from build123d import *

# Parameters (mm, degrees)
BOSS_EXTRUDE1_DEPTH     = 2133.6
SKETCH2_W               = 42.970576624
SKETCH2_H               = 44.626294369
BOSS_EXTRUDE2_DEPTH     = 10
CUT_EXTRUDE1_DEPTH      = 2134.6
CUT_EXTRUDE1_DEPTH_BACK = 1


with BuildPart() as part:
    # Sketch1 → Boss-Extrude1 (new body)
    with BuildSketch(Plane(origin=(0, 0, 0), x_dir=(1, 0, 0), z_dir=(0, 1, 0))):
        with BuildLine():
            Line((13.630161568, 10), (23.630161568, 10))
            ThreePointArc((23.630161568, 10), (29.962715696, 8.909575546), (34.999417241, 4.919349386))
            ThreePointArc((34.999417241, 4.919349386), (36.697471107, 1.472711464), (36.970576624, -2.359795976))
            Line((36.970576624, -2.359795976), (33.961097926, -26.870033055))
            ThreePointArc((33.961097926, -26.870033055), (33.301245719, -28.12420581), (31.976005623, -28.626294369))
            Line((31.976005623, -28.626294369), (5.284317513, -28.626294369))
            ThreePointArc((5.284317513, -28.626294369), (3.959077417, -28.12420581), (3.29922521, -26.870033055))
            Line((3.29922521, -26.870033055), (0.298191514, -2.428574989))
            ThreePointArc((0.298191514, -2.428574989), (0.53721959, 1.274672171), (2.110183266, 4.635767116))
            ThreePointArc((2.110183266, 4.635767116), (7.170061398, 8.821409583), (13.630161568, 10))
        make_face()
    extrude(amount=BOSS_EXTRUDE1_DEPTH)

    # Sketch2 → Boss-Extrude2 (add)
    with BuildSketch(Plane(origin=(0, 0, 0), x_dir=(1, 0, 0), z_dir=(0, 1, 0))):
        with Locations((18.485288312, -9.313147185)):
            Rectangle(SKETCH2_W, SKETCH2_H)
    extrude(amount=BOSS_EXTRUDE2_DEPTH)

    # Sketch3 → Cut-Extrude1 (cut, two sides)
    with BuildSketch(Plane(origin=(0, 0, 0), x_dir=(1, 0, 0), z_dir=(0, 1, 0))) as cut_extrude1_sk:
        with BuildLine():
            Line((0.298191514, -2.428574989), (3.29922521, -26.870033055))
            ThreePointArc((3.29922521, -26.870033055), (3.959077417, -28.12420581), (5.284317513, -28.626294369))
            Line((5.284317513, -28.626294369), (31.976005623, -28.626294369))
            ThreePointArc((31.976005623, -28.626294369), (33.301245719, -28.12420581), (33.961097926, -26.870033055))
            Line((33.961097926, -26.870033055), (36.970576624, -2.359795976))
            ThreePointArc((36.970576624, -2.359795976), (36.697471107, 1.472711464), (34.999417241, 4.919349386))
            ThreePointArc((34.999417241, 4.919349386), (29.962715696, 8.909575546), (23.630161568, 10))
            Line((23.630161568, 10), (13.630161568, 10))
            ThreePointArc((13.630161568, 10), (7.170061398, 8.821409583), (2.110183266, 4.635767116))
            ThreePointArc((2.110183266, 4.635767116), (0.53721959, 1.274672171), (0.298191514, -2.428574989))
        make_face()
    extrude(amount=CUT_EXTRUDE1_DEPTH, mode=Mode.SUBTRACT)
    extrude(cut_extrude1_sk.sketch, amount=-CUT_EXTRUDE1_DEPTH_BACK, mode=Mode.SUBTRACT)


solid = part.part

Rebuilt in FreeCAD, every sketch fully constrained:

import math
import FreeCAD as App
import Part
import Sketcher

V = App.Vector
Q = App.Units.Quantity


def add_polygon(sketch, points):
    """Adds a closed chain of lines whose ends are joined by coincident constraints."""
    first, n = sketch.GeometryCount, len(points)
    for a, b in zip(points, points[1:] + points[:1]):
        sketch.addGeometry(Part.LineSegment(App.Vector(*a, 0), App.Vector(*b, 0)), False)
    for i in range(n):
        sketch.addConstraint(Sketcher.Constraint("Coincident", first + i, 2, first + (i + 1) % n, 1))

doc = App.newDocument("Part")
body = doc.addObject("PartDesign::Body", "Body")

# Sketch on XZ plane
sketch1 = body.newObject("Sketcher::SketchObject", "Sketch")
sketch1.AttachmentSupport = (doc.getObject("XZ_Plane"), [""])
sketch1.MapMode = "FlatFace"
sketch1.addGeometry([
    Part.LineSegment(V(23.630162, -10, 0), V(13.630162, -10, 0)),  # 0
    Part.ArcOfCircle(Part.Circle(V(12.657694, 2.963576, 0), V(0, 0, 1), 13), math.radians(-144.227744), math.radians(-85.70997)),  # 1
    Part.ArcOfCircle(Part.Circle(V(10.223653, 1.209882, 0), V(0, 0, 1), 10), math.radians(173), math.radians(215.772256)),  # 2
    Part.LineSegment(V(0.298192, 2.428575, 0), V(3.299225, 26.870033, 0)),  # 3
    Part.ArcOfCircle(Part.Circle(V(5.284318, 26.626294, 0), V(0, 0, 1), 2), math.radians(90), math.radians(173)),  # 4
    Part.LineSegment(V(5.284318, 28.626294, 0), V(31.976006, 28.626294, 0)),  # 5
    Part.ArcOfCircle(Part.Circle(V(31.976006, 26.626294, 0), V(0, 0, 1), 2), math.radians(7), math.radians(90)),  # 6
    Part.LineSegment(V(33.961098, 26.870033, 0), V(36.970577, 2.359796, 0)),  # 7
    Part.ArcOfCircle(Part.Circle(V(27.045115, 1.141103, 0), V(0, 0, 1), 10), math.radians(-37.304091), math.radians(7)),  # 8
    Part.ArcOfCircle(Part.Circle(V(24.658824, 2.959238, 0), V(0, 0, 1), 13), math.radians(-94.53844), math.radians(-37.304091)),  # 9
], False)
sketch1.addConstraint([
    Sketcher.Constraint("Coincident", 0, 2, 1, 2),
    Sketcher.Constraint("Tangent", 1, 1, 2, 2),
    Sketcher.Constraint("Tangent", 2, 1, 3, 1),
    Sketcher.Constraint("Tangent", 3, 2, 4, 2),
    Sketcher.Constraint("Tangent", 4, 1, 5, 1),
    Sketcher.Constraint("Tangent", 5, 2, 6, 2),
    Sketcher.Constraint("Tangent", 6, 1, 7, 1),
    Sketcher.Constraint("Tangent", 7, 2, 8, 2),
    Sketcher.Constraint("Tangent", 8, 1, 9, 2),
    Sketcher.Constraint("Coincident", 9, 1, 0, 1),
    Sketcher.Constraint("Horizontal", 0),
    Sketcher.Constraint("Horizontal", 5),
    Sketcher.Constraint("Equal", 4, 6),
    Sketcher.Constraint("Equal", 2, 8),
    Sketcher.Constraint("Equal", 1, 9),
    Sketcher.Constraint("Horizontal", 3, 2, 6, 1),
    Sketcher.Constraint("Radius", 1, Q("13 mm")),
    Sketcher.Constraint("Radius", 2, Q("10 mm")),
    Sketcher.Constraint("Radius", 4, Q("2 mm")),
    Sketcher.Constraint("DistanceX", 0, 2, 0, 1, Q("10 mm")),
    Sketcher.Constraint("Angle", 3, Q("83 deg")),
    Sketcher.Constraint("DistanceY", 0, 2, -1, 1, Q("10 mm")),
    Sketcher.Constraint("DistanceY", 2, 1, 1, 3, Q("0.535001 mm")),
    Sketcher.Constraint("DistanceX", 5, 1, 5, 2, Q("26.691688 mm")),
    Sketcher.Constraint("DistanceY", 7, 2, 6, 3, Q("24.266498 mm")),
    Sketcher.Constraint("Distance", 3, Q("24.625009 mm")),
    Sketcher.Constraint("DistanceY", -1, 1, 2, 3, Q("1.209882 mm")),
    Sketcher.Constraint("DistanceX", -1, 1, 0, 2, Q("13.630162 mm")),
])
pad1 = body.newObject("PartDesign::Pad", "Pad")
pad1.Profile = sketch1
pad1.Length = 2133.6
pad1.Reversed = True

# Sketch on XZ plane
sketch2 = body.newObject("Sketcher::SketchObject", "Sketch001")
sketch2.AttachmentSupport = (doc.getObject("XZ_Plane"), [""])
sketch2.MapMode = "FlatFace"
add_polygon(sketch2, [(-3, -13), (-3, 31.626294), (39.970577, 31.626294), (39.970577, -13)])  # lines 0-3
sketch2.addConstraint([
    Sketcher.Constraint("Vertical", 0),
    Sketcher.Constraint("Horizontal", 1),
    Sketcher.Constraint("Vertical", 2),
    Sketcher.Constraint("Horizontal", 3),
    Sketcher.Constraint("DistanceX", 0, 2, -1, 1, Q("3 mm")),
    Sketcher.Constraint("DistanceY", 2, 2, -1, 1, Q("13 mm")),
    Sketcher.Constraint("DistanceX", 1, 1, 1, 2, Q("42.970577 mm")),
    Sketcher.Constraint("DistanceY", 0, 1, 0, 2, Q("44.626294 mm")),
])
pad2 = body.newObject("PartDesign::Pad", "Pad001")
pad2.Profile = sketch2
pad2.Length = 10
pad2.Reversed = True

# Sketch on XZ plane
sketch3 = body.newObject("Sketcher::SketchObject", "Sketch002")
sketch3.AttachmentSupport = (doc.getObject("XZ_Plane"), [""])
sketch3.MapMode = "FlatFace"
sketch3.addGeometry([
    Part.LineSegment(V(0.298192, 2.428575, 0), V(3.299225, 26.870033, 0)),  # 0
    Part.ArcOfCircle(Part.Circle(V(5.284318, 26.626294, 0), V(0, 0, 1), 2), math.radians(90), math.radians(173)),  # 1
    Part.LineSegment(V(5.284318, 28.626294, 0), V(31.976006, 28.626294, 0)),  # 2
    Part.ArcOfCircle(Part.Circle(V(31.976006, 26.626294, 0), V(0, 0, 1), 2), math.radians(7), math.radians(90)),  # 3
    Part.LineSegment(V(33.961098, 26.870033, 0), V(36.970577, 2.359796, 0)),  # 4
    Part.ArcOfCircle(Part.Circle(V(27.045115, 1.141103, 0), V(0, 0, 1), 10), math.radians(-37.304091), math.radians(7)),  # 5
    Part.ArcOfCircle(Part.Circle(V(24.658824, 2.959238, 0), V(0, 0, 1), 13), math.radians(-94.53844), math.radians(-37.304091)),  # 6
    Part.LineSegment(V(23.630162, -10, 0), V(13.630162, -10, 0)),  # 7
    Part.ArcOfCircle(Part.Circle(V(12.657694, 2.963576, 0), V(0, 0, 1), 13), math.radians(-144.227744), math.radians(-85.70997)),  # 8
    Part.ArcOfCircle(Part.Circle(V(10.223653, 1.209882, 0), V(0, 0, 1), 10), math.radians(173), math.radians(215.772256)),  # 9
], False)
sketch3.addConstraint([
    Sketcher.Constraint("Tangent", 0, 2, 1, 2),
    Sketcher.Constraint("Tangent", 1, 1, 2, 1),
    Sketcher.Constraint("Tangent", 2, 2, 3, 2),
    Sketcher.Constraint("Tangent", 3, 1, 4, 1),
    Sketcher.Constraint("Tangent", 4, 2, 5, 2),
    Sketcher.Constraint("Tangent", 5, 1, 6, 2),
    Sketcher.Constraint("Coincident", 6, 1, 7, 1),
    Sketcher.Constraint("Coincident", 7, 2, 8, 2),
    Sketcher.Constraint("Tangent", 8, 1, 9, 2),
    Sketcher.Constraint("Tangent", 9, 1, 0, 1),
    Sketcher.Constraint("Horizontal", 2),
    Sketcher.Constraint("Horizontal", 7),
    Sketcher.Constraint("Equal", 1, 3),
    Sketcher.Constraint("Equal", 6, 8),
    Sketcher.Constraint("Equal", 5, 9),
    Sketcher.Constraint("Horizontal", 0, 2, 3, 1),
    Sketcher.Constraint("Radius", 1, Q("2 mm")),
    Sketcher.Constraint("Radius", 5, Q("10 mm")),
    Sketcher.Constraint("Radius", 6, Q("13 mm")),
    Sketcher.Constraint("DistanceX", 7, 2, 7, 1, Q("10 mm")),
    Sketcher.Constraint("Angle", 0, Q("83 deg")),
    Sketcher.Constraint("DistanceY", 6, 1, -1, 1, Q("10 mm")),
    Sketcher.Constraint("DistanceY", 9, 1, 8, 3, Q("0.535001 mm")),
    Sketcher.Constraint("DistanceX", 2, 1, 2, 2, Q("26.691688 mm")),
    Sketcher.Constraint("DistanceX", 0, 2, 6, 3, Q("21.359599 mm")),
    Sketcher.Constraint("DistanceY", 4, 2, 3, 3, Q("24.266498 mm")),
    Sketcher.Constraint("Distance", 0, Q("24.625009 mm")),
    Sketcher.Constraint("DistanceX", -1, 1, 6, 1, Q("23.630162 mm")),
])
pocket1 = body.newObject("PartDesign::Pocket", "Pocket")
pocket1.Profile = sketch3
pocket1.Type = "ThroughAll"
pocket1.Midplane = True

doc.recompute()
